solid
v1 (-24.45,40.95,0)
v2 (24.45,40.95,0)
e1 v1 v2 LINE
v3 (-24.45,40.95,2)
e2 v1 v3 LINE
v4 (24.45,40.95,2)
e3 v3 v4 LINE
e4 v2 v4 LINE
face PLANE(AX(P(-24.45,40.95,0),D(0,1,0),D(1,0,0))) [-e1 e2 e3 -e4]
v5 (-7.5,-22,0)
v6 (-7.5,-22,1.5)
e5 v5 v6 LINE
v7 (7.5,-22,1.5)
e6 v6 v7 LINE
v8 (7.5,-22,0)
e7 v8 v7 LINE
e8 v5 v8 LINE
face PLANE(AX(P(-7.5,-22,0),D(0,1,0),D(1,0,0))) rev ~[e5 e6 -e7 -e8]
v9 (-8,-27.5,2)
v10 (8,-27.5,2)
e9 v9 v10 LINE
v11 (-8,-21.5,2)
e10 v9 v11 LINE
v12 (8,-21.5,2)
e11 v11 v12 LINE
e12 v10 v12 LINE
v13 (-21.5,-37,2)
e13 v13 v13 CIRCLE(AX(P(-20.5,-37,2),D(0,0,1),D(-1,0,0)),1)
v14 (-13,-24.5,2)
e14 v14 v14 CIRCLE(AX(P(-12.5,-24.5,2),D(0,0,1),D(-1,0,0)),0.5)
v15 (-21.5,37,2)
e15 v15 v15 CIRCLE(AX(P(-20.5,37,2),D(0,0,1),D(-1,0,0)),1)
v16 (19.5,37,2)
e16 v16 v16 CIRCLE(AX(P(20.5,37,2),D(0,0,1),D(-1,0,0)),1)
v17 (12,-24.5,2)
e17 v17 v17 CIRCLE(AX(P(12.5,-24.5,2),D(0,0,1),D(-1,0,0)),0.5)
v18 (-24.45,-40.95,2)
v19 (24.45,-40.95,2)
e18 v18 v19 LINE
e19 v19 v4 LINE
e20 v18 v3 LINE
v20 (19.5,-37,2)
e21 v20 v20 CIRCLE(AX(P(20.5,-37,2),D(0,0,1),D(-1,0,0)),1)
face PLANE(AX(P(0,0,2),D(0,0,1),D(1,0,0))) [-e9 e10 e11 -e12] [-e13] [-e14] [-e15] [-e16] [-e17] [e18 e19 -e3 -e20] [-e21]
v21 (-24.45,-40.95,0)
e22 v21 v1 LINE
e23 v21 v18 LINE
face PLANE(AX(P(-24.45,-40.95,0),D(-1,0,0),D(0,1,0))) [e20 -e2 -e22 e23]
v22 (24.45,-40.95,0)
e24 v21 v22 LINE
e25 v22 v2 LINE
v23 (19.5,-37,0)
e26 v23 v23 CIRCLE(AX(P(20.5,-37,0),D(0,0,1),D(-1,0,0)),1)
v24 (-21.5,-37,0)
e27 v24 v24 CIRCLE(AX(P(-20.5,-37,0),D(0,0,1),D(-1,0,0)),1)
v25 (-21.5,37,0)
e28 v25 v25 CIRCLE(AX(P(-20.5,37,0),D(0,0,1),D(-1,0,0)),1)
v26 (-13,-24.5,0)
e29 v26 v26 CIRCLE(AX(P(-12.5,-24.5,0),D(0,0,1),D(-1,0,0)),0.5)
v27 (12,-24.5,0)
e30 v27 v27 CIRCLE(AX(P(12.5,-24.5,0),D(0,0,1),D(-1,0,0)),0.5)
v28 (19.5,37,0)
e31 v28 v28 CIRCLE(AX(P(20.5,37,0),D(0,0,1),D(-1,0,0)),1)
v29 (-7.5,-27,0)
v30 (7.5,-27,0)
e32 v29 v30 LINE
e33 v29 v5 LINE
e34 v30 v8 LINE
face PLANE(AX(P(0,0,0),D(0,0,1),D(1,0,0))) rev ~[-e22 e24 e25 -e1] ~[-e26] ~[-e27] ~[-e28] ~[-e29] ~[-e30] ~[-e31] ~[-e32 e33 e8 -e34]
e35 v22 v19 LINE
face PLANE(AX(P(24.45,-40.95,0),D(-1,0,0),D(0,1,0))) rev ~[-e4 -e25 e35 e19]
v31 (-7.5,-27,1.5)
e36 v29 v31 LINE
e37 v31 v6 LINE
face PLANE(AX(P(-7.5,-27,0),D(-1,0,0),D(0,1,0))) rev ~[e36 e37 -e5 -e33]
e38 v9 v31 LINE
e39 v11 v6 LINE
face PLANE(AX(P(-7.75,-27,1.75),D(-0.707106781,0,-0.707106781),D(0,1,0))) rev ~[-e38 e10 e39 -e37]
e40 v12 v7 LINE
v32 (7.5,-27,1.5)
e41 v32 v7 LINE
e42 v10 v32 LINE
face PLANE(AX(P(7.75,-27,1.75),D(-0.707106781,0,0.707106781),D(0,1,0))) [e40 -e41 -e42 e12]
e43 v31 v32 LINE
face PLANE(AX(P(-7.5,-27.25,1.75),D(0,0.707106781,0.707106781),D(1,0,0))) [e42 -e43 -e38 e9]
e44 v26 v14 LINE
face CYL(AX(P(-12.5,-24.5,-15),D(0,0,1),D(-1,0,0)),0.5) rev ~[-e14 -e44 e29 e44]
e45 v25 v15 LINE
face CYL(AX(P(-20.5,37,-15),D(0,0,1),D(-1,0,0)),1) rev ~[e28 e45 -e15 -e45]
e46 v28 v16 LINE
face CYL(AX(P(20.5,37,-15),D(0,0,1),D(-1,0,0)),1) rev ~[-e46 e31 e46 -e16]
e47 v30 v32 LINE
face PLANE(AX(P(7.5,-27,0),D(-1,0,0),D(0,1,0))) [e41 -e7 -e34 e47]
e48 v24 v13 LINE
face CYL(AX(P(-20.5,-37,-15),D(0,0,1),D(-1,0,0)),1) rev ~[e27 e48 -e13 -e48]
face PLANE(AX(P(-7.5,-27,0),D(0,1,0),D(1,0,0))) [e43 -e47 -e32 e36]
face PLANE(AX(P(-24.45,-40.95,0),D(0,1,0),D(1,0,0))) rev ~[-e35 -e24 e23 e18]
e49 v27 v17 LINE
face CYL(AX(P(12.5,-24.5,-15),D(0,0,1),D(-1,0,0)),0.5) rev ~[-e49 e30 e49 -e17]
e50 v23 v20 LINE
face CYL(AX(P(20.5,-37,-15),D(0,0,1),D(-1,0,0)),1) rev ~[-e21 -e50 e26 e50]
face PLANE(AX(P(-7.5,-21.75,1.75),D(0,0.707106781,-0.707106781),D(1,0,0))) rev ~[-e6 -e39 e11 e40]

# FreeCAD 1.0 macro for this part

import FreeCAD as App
import Part
import Sketcher
from FreeCAD import Vector
Q = App.Units.Quantity


def edges_at(feature, points):
    """Names of the edges that pass closest to the given points."""
    edges = feature.Shape.Edges
    near = lambda p: min(range(len(edges)), key=lambda i: edges[i].distToShape(Part.Vertex(*p))[0])
    return sorted({f"Edge{near(p) + 1}" for p in points})


def add_polygon(sketch, points):
    """Adds a closed chain of lines whose ends are joined by coincident constraints."""
    first, n = sketch.GeometryCount, len(points)
    for a, b in zip(points, points[1:] + points[:1]):
        sketch.addGeometry(Part.LineSegment(App.Vector(*a, 0), App.Vector(*b, 0)), False)
    for i in range(n):
        sketch.addConstraint(Sketcher.Constraint("Coincident", first + i, 2, first + (i + 1) % n, 1))

doc = App.newDocument("Part")
params = doc.addObject("Spreadsheet::Sheet", "Params")
for row, (alias, value) in enumerate([
    ("sketch1_width", "15 mm"),
    ("sketch1_height", "5 mm"),
    ("sketch1_width2", "48.9 mm"),
    ("sketch1_height2", "81.9 mm"),
    ("pad1_length", "2 mm"),
    ("sketch2_diameter", "2 mm"),
    ("hole_diameter", "2 mm"),
    ("hole_depth", "15 mm"),
    ("sketch3_diameter", "1 mm"),
    ("hole2_diameter", "1 mm"),
    ("hole2_depth", "15 mm"),
    ("chamfer_size", "0.5 mm"),
], start=1):
    params.set(f"A{row}", alias)
    params.set(f"B{row}", "=" + value)
    params.setAlias(f"B{row}", alias)

body = doc.addObject("PartDesign::Body", "Body")

# Sketch on XY plane
sketch1 = body.newObject("Sketcher::SketchObject", "Sketch")
sketch1.AttachmentSupport = (doc.getObject("XY_Plane"), [""])
sketch1.MapMode = "FlatFace"
add_polygon(sketch1, [(-24, 41), (-24, -41), (24, -41), (24, 41)])  # lines 0-3
add_polygon(sketch1, [(8, -27), (-8, -27), (-8, -22), (8, -22)])  # lines 4-7
sketch1.addConstraint([
    Sketcher.Constraint("Vertical", 0),
    Sketcher.Constraint("Horizontal", 1),
    Sketcher.Constraint("Vertical", 2),
    Sketcher.Constraint("Horizontal", 3),
    Sketcher.Constraint("Horizontal", 4),
    Sketcher.Constraint("Vertical", 5),
    Sketcher.Constraint("Horizontal", 6),
    Sketcher.Constraint("Vertical", 7),
    Sketcher.Constraint("Symmetric", 0, 2, 2, 2, -1, 1),
    Sketcher.Constraint("DistanceX", 4, 2, 4, 1, Q("15 mm")),
    Sketcher.Constraint("DistanceY", 5, 1, 5, 2, Q("5 mm")),
    Sketcher.Constraint("DistanceX", 1, 1, 1, 2, Q("48.9 mm")),
    Sketcher.Constraint("DistanceY", 0, 2, 0, 1, Q("81.9 mm")),
    Sketcher.Constraint("DistanceY", 4, 2, -1, 1, Q("27 mm")),
    Sketcher.Constraint("DistanceX", 4, 2, -1, 1, Q("7.5 mm")),
])
sketch1.setExpression("Constraints[17]", "Params.sketch1_width")
sketch1.setExpression("Constraints[18]", "Params.sketch1_height")
sketch1.setExpression("Constraints[19]", "Params.sketch1_width2")
sketch1.setExpression("Constraints[20]", "Params.sketch1_height2")
pad1 = body.newObject("PartDesign::Pad", "Pad")
pad1.Profile = sketch1
pad1.setExpression("Length", "Params.pad1_length")

# Sketch on XY plane
sketch2 = body.newObject("Sketcher::SketchObject", "Sketch001")
sketch2.AttachmentSupport = (doc.getObject("XY_Plane"), [""])
sketch2.MapMode = "FlatFace"
sketch2.addGeometry([
    Part.Circle(Vector(-20.5, 37, 0), Vector(0, 0, 1), 1),
    Part.Circle(Vector(20.5, 37, 0), Vector(0, 0, 1), 1),
    Part.Circle(Vector(-20.5, -37, 0), Vector(0, 0, 1), 1),
    Part.Circle(Vector(20.5, -37, 0), Vector(0, 0, 1), 1),
], False)
sketch2.addConstraint([
    Sketcher.Constraint("Equal", 0, 1),
    Sketcher.Constraint("Equal", 1, 2),
    Sketcher.Constraint("Equal", 2, 3),
    Sketcher.Constraint("Symmetric", 1, 3, 2, 3, -1, 1),
    Sketcher.Constraint("Symmetric", 0, 3, 3, 3, -1, 1),
    Sketcher.Constraint("Symmetric", 0, 3, 1, 3, -2),
    Sketcher.Constraint("Diameter", 0, Q("2 mm")),
    Sketcher.Constraint("DistanceY", -1, 1, 0, 3, Q("37 mm")),
    Sketcher.Constraint("DistanceX", 0, 3, 1, 3, Q("41 mm")),
])
sketch2.setExpression("Constraints[6]", "Params.sketch2_diameter")
doc.recompute()
hole = body.newObject("PartDesign::Hole", "Hole")
hole.Profile = sketch2
hole.ThreadType = "None"
hole.setExpression("Diameter", "Params.hole_diameter")
hole.DepthType = "Dimension"
hole.setExpression("Depth", "Params.hole_depth")
hole.DrillPoint = "Angled"
hole.DrillPointAngle = 118
hole.Reversed = True

# Sketch on XY plane
sketch3 = body.newObject("Sketcher::SketchObject", "Sketch002")
sketch3.AttachmentSupport = (doc.getObject("XY_Plane"), [""])
sketch3.MapMode = "FlatFace"
sketch3.addGeometry([
    Part.Circle(Vector(-12.5, -24.5, 0), Vector(0, 0, 1), 0.5),
    Part.Circle(Vector(12.5, -24.5, 0), Vector(0, 0, 1), 0.5),
], False)
sketch3.addConstraint([
    Sketcher.Constraint("Equal", 0, 1),
    Sketcher.Constraint("Symmetric", 0, 3, 1, 3, -2),
    Sketcher.Constraint("Diameter", 0, Q("1 mm")),
    Sketcher.Constraint("DistanceX", 0, 3, 1, 3, Q("25 mm")),
    Sketcher.Constraint("DistanceY", 0, 3, -1, 1, Q("24.5 mm")),
])
sketch3.setExpression("Constraints[2]", "Params.sketch3_diameter")
doc.recompute()
hole2 = body.newObject("PartDesign::Hole", "Hole001")
hole2.Profile = sketch3
hole2.ThreadType = "None"
hole2.setExpression("Diameter", "Params.hole2_diameter")
hole2.DepthType = "Dimension"
hole2.setExpression("Depth", "Params.hole2_depth")
hole2.DrillPoint = "Angled"
hole2.DrillPointAngle = 118
hole2.Reversed = True
doc.recompute()

chamfer = body.newObject("PartDesign::Chamfer", "Chamfer")
chamfer.Base = (hole2, edges_at(hole2, [
    (0, -22, 2),
    (-7.5, -24.5, 2),
    (0, -27, 2),
    (7.5, -24.5, 2),
]))
chamfer.setExpression("Size", "Params.chamfer_size")

doc.recompute()
